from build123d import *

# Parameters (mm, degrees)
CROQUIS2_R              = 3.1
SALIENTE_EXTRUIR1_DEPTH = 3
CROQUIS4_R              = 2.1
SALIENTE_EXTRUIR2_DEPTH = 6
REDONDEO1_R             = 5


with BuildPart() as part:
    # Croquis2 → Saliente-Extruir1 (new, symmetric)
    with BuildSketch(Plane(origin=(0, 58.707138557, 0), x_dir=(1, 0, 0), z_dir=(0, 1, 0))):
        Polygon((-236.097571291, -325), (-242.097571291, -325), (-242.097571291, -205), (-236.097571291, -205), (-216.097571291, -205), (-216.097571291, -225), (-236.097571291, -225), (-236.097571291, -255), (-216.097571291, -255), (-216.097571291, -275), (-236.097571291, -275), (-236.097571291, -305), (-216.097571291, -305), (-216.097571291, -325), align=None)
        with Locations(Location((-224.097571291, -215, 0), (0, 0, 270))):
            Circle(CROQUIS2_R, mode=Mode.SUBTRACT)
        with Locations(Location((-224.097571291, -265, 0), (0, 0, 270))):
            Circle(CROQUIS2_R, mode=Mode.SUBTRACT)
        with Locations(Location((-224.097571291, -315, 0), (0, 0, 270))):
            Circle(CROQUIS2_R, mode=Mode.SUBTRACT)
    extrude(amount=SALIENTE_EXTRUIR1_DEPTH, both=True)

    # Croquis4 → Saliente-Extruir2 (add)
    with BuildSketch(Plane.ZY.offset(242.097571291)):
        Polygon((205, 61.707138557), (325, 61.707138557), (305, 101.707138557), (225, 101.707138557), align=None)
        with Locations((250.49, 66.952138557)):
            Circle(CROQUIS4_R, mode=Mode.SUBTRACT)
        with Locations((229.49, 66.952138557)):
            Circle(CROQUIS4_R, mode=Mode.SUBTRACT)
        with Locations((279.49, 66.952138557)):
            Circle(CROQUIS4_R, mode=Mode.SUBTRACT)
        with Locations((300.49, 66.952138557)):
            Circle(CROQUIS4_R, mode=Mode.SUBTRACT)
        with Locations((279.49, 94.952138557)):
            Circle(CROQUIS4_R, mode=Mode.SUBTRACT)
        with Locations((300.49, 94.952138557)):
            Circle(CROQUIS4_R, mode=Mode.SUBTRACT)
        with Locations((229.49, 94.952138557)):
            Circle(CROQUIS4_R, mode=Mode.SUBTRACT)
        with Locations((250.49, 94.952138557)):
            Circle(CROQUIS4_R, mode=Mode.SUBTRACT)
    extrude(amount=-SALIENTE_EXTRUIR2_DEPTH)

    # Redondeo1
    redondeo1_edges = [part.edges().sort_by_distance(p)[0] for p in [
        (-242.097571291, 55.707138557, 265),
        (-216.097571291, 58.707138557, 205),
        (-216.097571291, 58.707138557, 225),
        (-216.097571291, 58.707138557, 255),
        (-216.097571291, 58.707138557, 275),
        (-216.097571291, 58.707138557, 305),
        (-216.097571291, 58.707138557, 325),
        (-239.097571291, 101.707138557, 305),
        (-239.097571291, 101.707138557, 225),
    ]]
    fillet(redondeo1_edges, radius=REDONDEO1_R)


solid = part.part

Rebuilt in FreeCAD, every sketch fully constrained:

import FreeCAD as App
import Part
import Sketcher

V = App.Vector
Q = App.Units.Quantity


def edges_at(feature, points):
    """Names of the edges that pass closest to the given points."""
    edges = feature.Shape.Edges
    near = lambda p: min(range(len(edges)), key=lambda i: edges[i].distToShape(Part.Vertex(*p))[0])
    return sorted({f"Edge{near(p) + 1}" for p in points})

doc = App.newDocument("Part")
body = doc.addObject("PartDesign::Body", "Body")

sketch1 = doc.addObject("Sketcher::SketchObject", "Sketch")
body.addObject(sketch1)
sketch1.AttachmentSupport = (doc.XZ_Plane, [""])
sketch1.MapMode = "FlatFace"
sketch1.AttachmentOffset = App.Placement(V(0, 0, -58.707139), App.Rotation())
sketch1.addGeometry(Part.LineSegment(V(-242.1, 325, 0), V(-216.1, 325, 0)), False)
sketch1.addGeometry(Part.LineSegment(V(-216.1, 325, 0), V(-216.1, 305, 0)), False)
sketch1.addGeometry(Part.LineSegment(V(-216.1, 305, 0), V(-236.1, 305, 0)), False)
sketch1.addGeometry(Part.LineSegment(V(-236.1, 305, 0), V(-236.1, 275, 0)), False)
sketch1.addGeometry(Part.LineSegment(V(-236.1, 275, 0), V(-216.1, 275, 0)), False)
sketch1.addGeometry(Part.LineSegment(V(-216.1, 275, 0), V(-216.1, 255, 0)), False)
sketch1.addGeometry(Part.LineSegment(V(-216.1, 255, 0), V(-236.1, 255, 0)), False)
sketch1.addGeometry(Part.LineSegment(V(-236.1, 255, 0), V(-236.1, 225, 0)), False)
sketch1.addGeometry(Part.LineSegment(V(-236.1, 225, 0), V(-216.1, 225, 0)), False)
sketch1.addGeometry(Part.LineSegment(V(-216.1, 225, 0), V(-216.1, 205, 0)), False)
sketch1.addGeometry(Part.LineSegment(V(-216.1, 205, 0), V(-242.1, 205, 0)), False)
sketch1.addGeometry(Part.LineSegment(V(-242.1, 205, 0), V(-242.1, 325, 0)), False)
sketch1.addGeometry(Part.Circle(V(-224.1, 315, 0), V(0, 0, 1), 3.1), False)
sketch1.addGeometry(Part.Circle(V(-224.1, 265, 0), V(0, 0, 1), 3.1), False)
sketch1.addGeometry(Part.Circle(V(-224.1, 215, 0), V(0, 0, 1), 3.1), False)
sketch1.addConstraint(Sketcher.Constraint("Coincident", 0, 2, 1, 1))
sketch1.addConstraint(Sketcher.Constraint("Coincident", 1, 2, 2, 1))
sketch1.addConstraint(Sketcher.Constraint("Coincident", 2, 2, 3, 1))
sketch1.addConstraint(Sketcher.Constraint("Coincident", 3, 2, 4, 1))
sketch1.addConstraint(Sketcher.Constraint("Coincident", 4, 2, 5, 1))
sketch1.addConstraint(Sketcher.Constraint("Coincident", 5, 2, 6, 1))
sketch1.addConstraint(Sketcher.Constraint("Coincident", 6, 2, 7, 1))
sketch1.addConstraint(Sketcher.Constraint("Coincident", 7, 2, 8, 1))
sketch1.addConstraint(Sketcher.Constraint("Coincident", 8, 2, 9, 1))
sketch1.addConstraint(Sketcher.Constraint("Coincident", 9, 2, 10, 1))
sketch1.addConstraint(Sketcher.Constraint("Coincident", 10, 2, 11, 1))
sketch1.addConstraint(Sketcher.Constraint("Coincident", 11, 2, 0, 1))
sketch1.addConstraint(Sketcher.Constraint("Horizontal", 0))
sketch1.addConstraint(Sketcher.Constraint("Vertical", 1))
sketch1.addConstraint(Sketcher.Constraint("Horizontal", 2))
sketch1.addConstraint(Sketcher.Constraint("Vertical", 3))
sketch1.addConstraint(Sketcher.Constraint("Horizontal", 4))
sketch1.addConstraint(Sketcher.Constraint("Vertical", 5))
sketch1.addConstraint(Sketcher.Constraint("Horizontal", 6))
sketch1.addConstraint(Sketcher.Constraint("Vertical", 7))
sketch1.addConstraint(Sketcher.Constraint("Horizontal", 8))
sketch1.addConstraint(Sketcher.Constraint("Vertical", 9))
sketch1.addConstraint(Sketcher.Constraint("Horizontal", 10))
sketch1.addConstraint(Sketcher.Constraint("Vertical", 11))
sketch1.addConstraint(Sketcher.Constraint("Equal", 12, 13))
sketch1.addConstraint(Sketcher.Constraint("Equal", 13, 14))
sketch1.addConstraint(Sketcher.Constraint("Vertical", 12, 3, 13, 3))
sketch1.addConstraint(Sketcher.Constraint("Vertical", 13, 3, 14, 3))
sketch1.addConstraint(Sketcher.Constraint("Vertical", 1, 2, 4, 2))
sketch1.addConstraint(Sketcher.Constraint("Vertical", 3, 2, 6, 2))
sketch1.addConstraint(Sketcher.Constraint("Vertical", 5, 2, 8, 2))
sketch1.addConstraint(Sketcher.Constraint("Equal", 8, 1))
sketch1.addConstraint(Sketcher.Constraint("Equal", 1, 5))
sketch1.addConstraint(Sketcher.Constraint("Equal", 3, 7))
sketch1.addConstraint(Sketcher.Constraint("Equal", 5, 9))
sketch1.addConstraint(Sketcher.Constraint("Diameter", 12, Q("6.2 mm")))
sketch1.addConstraint(Sketcher.Constraint("DistanceX", 0, 1, 0, 2, Q("26 mm")))
sketch1.addConstraint(Sketcher.Constraint("DistanceX", 2, 2, 2, 1, Q("20 mm")))
sketch1.addConstraint(Sketcher.Constraint("DistanceY", 3, 2, 3, 1, Q("30 mm")))
sketch1.addConstraint(Sketcher.Constraint("DistanceY", -1, 1, 12, 3, Q("315 mm")))
sketch1.addConstraint(Sketcher.Constraint("DistanceY", -1, 1, 13, 3, Q("265 mm")))
sketch1.addConstraint(Sketcher.Constraint("DistanceY", -1, 1, 14, 3, Q("215 mm")))
sketch1.addConstraint(Sketcher.Constraint("DistanceY", -1, 1, 0, 2, Q("325 mm")))
sketch1.addConstraint(Sketcher.Constraint("DistanceX", 12, 3, 0, 2, Q("8 mm")))
sketch1.addConstraint(Sketcher.Constraint("DistanceX", 12, 3, -1, 1, Q("224.097571 mm")))
pad1 = doc.addObject("PartDesign::Pad", "Pad")
body.addObject(pad1)
pad1.Profile = sketch1
pad1.Length = 6
pad1.Midplane = True

sketch2 = doc.addObject("Sketcher::SketchObject", "Sketch001")
body.addObject(sketch2)
sketch2.AttachmentSupport = (doc.YZ_Plane, [""])
sketch2.MapMode = "FlatFace"
sketch2.AttachmentOffset = App.Placement(V(0, 0, -242.097571), App.Rotation())
sketch2.addGeometry(Part.LineSegment(V(61.7, 205, 0), V(61.7, 325, 0)), False)
sketch2.addGeometry(Part.LineSegment(V(61.7, 325, 0), V(101.7, 305, 0)), False)
sketch2.addGeometry(Part.LineSegment(V(101.7, 305, 0), V(101.7, 225, 0)), False)
sketch2.addGeometry(Part.LineSegment(V(101.7, 225, 0), V(61.7, 205, 0)), False)
sketch2.addGeometry(Part.Circle(V(67, 229.5, 0), V(0, 0, 1), 2.1), False)
sketch2.addGeometry(Part.Circle(V(67, 250.5, 0), V(0, 0, 1), 2.1), False)
sketch2.addGeometry(Part.Circle(V(67, 279.5, 0), V(0, 0, 1), 2.1), False)
sketch2.addGeometry(Part.Circle(V(67, 300.5, 0), V(0, 0, 1), 2.1), False)
sketch2.addGeometry(Part.Circle(V(95, 229.5, 0), V(0, 0, 1), 2.1), False)
sketch2.addGeometry(Part.Circle(V(95, 250.5, 0), V(0, 0, 1), 2.1), False)
sketch2.addGeometry(Part.Circle(V(95, 279.5, 0), V(0, 0, 1), 2.1), False)
sketch2.addGeometry(Part.Circle(V(95, 300.5, 0), V(0, 0, 1), 2.1), False)
sketch2.addConstraint(Sketcher.Constraint("Coincident", 0, 2, 1, 1))
sketch2.addConstraint(Sketcher.Constraint("Coincident", 1, 2, 2, 1))
sketch2.addConstraint(Sketcher.Constraint("Coincident", 2, 2, 3, 1))
sketch2.addConstraint(Sketcher.Constraint("Coincident", 3, 2, 0, 1))
sketch2.addConstraint(Sketcher.Constraint("Vertical", 0))
sketch2.addConstraint(Sketcher.Constraint("Vertical", 2))
sketch2.addConstraint(Sketcher.Constraint("Equal", 4, 5))
sketch2.addConstraint(Sketcher.Constraint("Equal", 5, 6))
sketch2.addConstraint(Sketcher.Constraint("Equal", 6, 7))
sketch2.addConstraint(Sketcher.Constraint("Equal", 7, 8))
sketch2.addConstraint(Sketcher.Constraint("Equal", 8, 9))
sketch2.addConstraint(Sketcher.Constraint("Equal", 9, 10))
sketch2.addConstraint(Sketcher.Constraint("Equal", 10, 11))
sketch2.addConstraint(Sketcher.Constraint("Horizontal", 4, 3, 8, 3))
sketch2.addConstraint(Sketcher.Constraint("Horizontal", 5, 3, 9, 3))
sketch2.addConstraint(Sketcher.Constraint("Horizontal", 6, 3, 10, 3))
sketch2.addConstraint(Sketcher.Constraint("Horizontal", 7, 3, 11, 3))
sketch2.addConstraint(Sketcher.Constraint("Vertical", 4, 3, 5, 3))
sketch2.addConstraint(Sketcher.Constraint("Vertical", 5, 3, 6, 3))
sketch2.addConstraint(Sketcher.Constraint("Vertical", 6, 3, 7, 3))
sketch2.addConstraint(Sketcher.Constraint("Vertical", 8, 3, 9, 3))
sketch2.addConstraint(Sketcher.Constraint("Vertical", 9, 3, 10, 3))
sketch2.addConstraint(Sketcher.Constraint("Vertical", 10, 3, 11, 3))
sketch2.addConstraint(Sketcher.Constraint("Equal", 1, 3))
sketch2.addConstraint(Sketcher.Constraint("Diameter", 4, Q("4.2 mm")))
sketch2.addConstraint(Sketcher.Constraint("DistanceY", 0, 1, 0, 2, Q("120 mm")))
sketch2.addConstraint(Sketcher.Constraint("DistanceY", 2, 2, 2, 1, Q("80 mm")))
sketch2.addConstraint(Sketcher.Constraint("DistanceY", -1, 1, 0, 2, Q("325 mm")))
sketch2.addConstraint(Sketcher.Constraint("DistanceY", 4, 3, 5, 3, Q("21 mm")))
sketch2.addConstraint(Sketcher.Constraint("DistanceY", 5, 3, 6, 3, Q("29 mm")))
sketch2.addConstraint(Sketcher.Constraint("DistanceY", 6, 3, 7, 3, Q("21 mm")))
sketch2.addConstraint(Sketcher.Constraint("DistanceX", 4, 3, 8, 3, Q("28 mm")))
sketch2.addConstraint(Sketcher.Constraint("DistanceX", 0, 2, 1, 2, Q("40 mm")))
sketch2.addConstraint(Sketcher.Constraint("DistanceY", -1, 1, 4, 3, Q("229.49 mm")))
sketch2.addConstraint(Sketcher.Constraint("DistanceX", 0, 2, 7, 3, Q("5.245 mm")))
sketch2.addConstraint(Sketcher.Constraint("DistanceX", -1, 1, 4, 3, Q("66.952139 mm")))
pad2 = doc.addObject("PartDesign::Pad", "Pad001")
body.addObject(pad2)
pad2.Profile = sketch2
pad2.Length = 6
doc.recompute()

fillet = doc.addObject("PartDesign::Fillet", "Fillet")
body.addObject(fillet)
fillet.Base = (pad2, edges_at(pad2, [
    (-242.098, 55.707, 265),
    (-216.098, 58.707, 205),
    (-216.098, 58.707, 225),
    (-216.098, 58.707, 255),
    (-216.098, 58.707, 275),
    (-216.098, 58.707, 305),
    (-216.098, 58.707, 325),
    (-239.098, 101.707, 305),
    (-239.098, 101.707, 225),
]))
fillet.Radius = 5

doc.recompute()
